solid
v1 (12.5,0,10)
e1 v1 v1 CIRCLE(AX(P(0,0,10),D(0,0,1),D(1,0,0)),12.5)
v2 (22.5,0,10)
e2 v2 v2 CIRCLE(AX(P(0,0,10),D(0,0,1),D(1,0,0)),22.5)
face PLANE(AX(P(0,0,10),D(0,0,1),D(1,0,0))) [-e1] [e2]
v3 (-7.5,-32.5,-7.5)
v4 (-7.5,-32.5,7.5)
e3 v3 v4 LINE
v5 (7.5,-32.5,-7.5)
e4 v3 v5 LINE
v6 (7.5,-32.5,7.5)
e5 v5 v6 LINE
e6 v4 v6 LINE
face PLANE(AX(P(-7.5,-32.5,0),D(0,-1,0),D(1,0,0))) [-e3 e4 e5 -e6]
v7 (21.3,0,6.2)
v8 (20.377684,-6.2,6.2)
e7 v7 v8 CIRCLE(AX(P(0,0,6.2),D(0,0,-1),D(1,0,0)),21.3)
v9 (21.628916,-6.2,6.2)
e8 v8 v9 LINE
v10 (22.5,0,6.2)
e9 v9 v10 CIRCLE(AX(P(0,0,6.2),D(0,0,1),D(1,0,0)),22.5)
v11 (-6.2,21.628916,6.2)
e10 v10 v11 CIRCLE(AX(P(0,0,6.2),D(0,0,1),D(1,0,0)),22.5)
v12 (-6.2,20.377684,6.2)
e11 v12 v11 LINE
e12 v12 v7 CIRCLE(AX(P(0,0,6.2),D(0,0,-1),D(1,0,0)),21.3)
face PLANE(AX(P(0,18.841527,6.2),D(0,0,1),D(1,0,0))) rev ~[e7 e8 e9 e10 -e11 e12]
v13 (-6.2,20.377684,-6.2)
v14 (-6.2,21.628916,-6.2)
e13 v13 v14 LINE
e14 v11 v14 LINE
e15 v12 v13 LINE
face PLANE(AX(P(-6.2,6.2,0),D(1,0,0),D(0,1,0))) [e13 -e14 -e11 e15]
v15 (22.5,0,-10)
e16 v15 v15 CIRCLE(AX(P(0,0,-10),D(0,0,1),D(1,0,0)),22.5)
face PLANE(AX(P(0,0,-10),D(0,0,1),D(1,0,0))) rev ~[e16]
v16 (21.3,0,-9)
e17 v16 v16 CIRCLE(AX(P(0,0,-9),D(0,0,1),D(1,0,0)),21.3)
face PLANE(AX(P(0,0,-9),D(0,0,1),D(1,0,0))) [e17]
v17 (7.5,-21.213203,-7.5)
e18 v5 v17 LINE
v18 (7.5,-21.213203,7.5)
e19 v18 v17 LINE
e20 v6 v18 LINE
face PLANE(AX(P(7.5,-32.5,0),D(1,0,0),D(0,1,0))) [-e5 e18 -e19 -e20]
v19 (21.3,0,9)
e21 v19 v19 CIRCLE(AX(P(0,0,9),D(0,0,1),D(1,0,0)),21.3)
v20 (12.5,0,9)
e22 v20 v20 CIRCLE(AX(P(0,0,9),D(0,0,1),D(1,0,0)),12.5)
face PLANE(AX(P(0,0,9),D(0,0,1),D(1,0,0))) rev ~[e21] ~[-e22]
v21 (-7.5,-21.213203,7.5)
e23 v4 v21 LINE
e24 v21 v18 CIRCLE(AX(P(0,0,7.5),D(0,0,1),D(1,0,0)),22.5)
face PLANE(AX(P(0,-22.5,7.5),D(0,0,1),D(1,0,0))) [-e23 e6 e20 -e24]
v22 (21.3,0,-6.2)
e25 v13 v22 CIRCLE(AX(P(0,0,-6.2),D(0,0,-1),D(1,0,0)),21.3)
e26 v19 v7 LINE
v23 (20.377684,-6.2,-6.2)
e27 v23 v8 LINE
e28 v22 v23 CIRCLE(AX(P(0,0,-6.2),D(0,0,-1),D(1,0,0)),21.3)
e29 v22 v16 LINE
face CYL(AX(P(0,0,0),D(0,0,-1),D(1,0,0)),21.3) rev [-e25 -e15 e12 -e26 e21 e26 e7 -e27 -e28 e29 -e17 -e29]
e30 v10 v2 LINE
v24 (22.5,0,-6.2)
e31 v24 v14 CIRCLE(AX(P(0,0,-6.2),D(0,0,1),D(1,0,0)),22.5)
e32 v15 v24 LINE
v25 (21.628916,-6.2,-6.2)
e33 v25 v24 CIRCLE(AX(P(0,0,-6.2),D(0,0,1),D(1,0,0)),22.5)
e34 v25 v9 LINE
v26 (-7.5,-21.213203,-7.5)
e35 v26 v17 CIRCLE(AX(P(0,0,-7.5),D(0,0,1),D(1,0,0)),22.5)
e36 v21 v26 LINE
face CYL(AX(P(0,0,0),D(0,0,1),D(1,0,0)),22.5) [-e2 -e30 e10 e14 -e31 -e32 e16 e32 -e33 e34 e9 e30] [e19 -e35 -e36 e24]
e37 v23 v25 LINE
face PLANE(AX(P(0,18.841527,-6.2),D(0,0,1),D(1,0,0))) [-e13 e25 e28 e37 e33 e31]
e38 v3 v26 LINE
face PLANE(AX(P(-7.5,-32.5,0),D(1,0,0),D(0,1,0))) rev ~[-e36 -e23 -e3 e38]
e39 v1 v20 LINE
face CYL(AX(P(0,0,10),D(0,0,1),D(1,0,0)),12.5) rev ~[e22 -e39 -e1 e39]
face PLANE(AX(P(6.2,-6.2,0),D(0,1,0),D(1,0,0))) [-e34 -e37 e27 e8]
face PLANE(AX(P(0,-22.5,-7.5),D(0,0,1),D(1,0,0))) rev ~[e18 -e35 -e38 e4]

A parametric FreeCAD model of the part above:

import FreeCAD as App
import Part
import Sketcher
from FreeCAD import Vector

doc = App.newDocument("Part")
params = doc.addObject("Spreadsheet::Sheet", "Params")
for row, (alias, value) in enumerate([
    ("sketch1_diameter", "45 mm"),
    ("pad1_length", "10 mm"),
    ("pad1_length2", "10 mm"),
    ("sketch2_width", "15 mm"),
    ("sketch2_height", "20 mm"),
    ("pad2_length", "7.5 mm"),
    ("pad2_length2", "7.5 mm"),
    ("sketch3_diameter", "42.6 mm"),
    ("pocket1_length", "9 mm"),
    ("pocket1_length2", "9 mm"),
    ("sketch4_diameter", "25 mm"),
    ("pocket2_length", "3 mm"),
    ("sketch5_width", "12.4 mm"),
    ("pocket3_length", "6.2 mm"),
    ("pocket3_length2", "6.2 mm"),
], start=1):
    params.set(f"A{row}", alias)
    params.set(f"B{row}", "=" + value)
    params.setAlias(f"B{row}", alias)

body = doc.addObject("PartDesign::Body", "Body")

# Sketch on XY plane
sketch1 = doc.addObject("Sketcher::SketchObject", "Sketch")
body.addObject(sketch1)
sketch1.AttachmentSupport = (doc.XY_Plane, [""])
sketch1.MapMode = "FlatFace"
sketch1.addGeometry(Part.Circle(Vector(0, 0, 0), Vector(0, 0, 1), 22.5), False)
sketch1.addConstraint([
    Sketcher.Constraint("Coincident", 0, 3, -1, 1),
    Sketcher.Constraint("Diameter", 0, 45.0),
])
sketch1.setExpression("Constraints[1]", "Params.sketch1_diameter")
pad1 = doc.addObject("PartDesign::Pad", "Pad")
body.addObject(pad1)
pad1.Profile = sketch1
pad1.Type = "TwoLengths"
pad1.setExpression("Length", "Params.pad1_length")
pad1.setExpression("Length2", "Params.pad1_length2")

# Sketch on XY plane
sketch2 = doc.addObject("Sketcher::SketchObject", "Sketch001")
body.addObject(sketch2)
sketch2.AttachmentSupport = (doc.XY_Plane, [""])
sketch2.MapMode = "FlatFace"
sketch2.addGeometry([
    Part.LineSegment(Vector(-7.5, -12.5, 0), Vector(-7.5, -32.5, 0)),
    Part.LineSegment(Vector(-7.5, -32.5, 0), Vector(7.5, -32.5, 0)),
    Part.LineSegment(Vector(7.5, -32.5, 0), Vector(7.5, -12.5, 0)),
    Part.LineSegment(Vector(7.5, -12.5, 0), Vector(-7.5, -12.5, 0)),
], False)
sketch2.addConstraint([
    Sketcher.Constraint("Coincident", 0, 2, 1, 1),
    Sketcher.Constraint("Coincident", 1, 2, 2, 1),
    Sketcher.Constraint("Coincident", 2, 2, 3, 1),
    Sketcher.Constraint("Coincident", 3, 2, 0, 1),
    Sketcher.Constraint("Vertical", 0),
    Sketcher.Constraint("Horizontal", 1),
    Sketcher.Constraint("Vertical", 2),
    Sketcher.Constraint("Horizontal", 3),
    Sketcher.Constraint("DistanceX", 1, 1, 1, 2, 15.0),
    Sketcher.Constraint("DistanceY", 0, 2, 0, 1, 20.0),
    Sketcher.Constraint("DistanceX", 0, 2, -1, 1, 7.5),
    Sketcher.Constraint("DistanceY", 0, 2, -1, 1, 32.5),
])
sketch2.setExpression("Constraints[8]", "Params.sketch2_width")
sketch2.setExpression("Constraints[9]", "Params.sketch2_height")
pad2 = doc.addObject("PartDesign::Pad", "Pad001")
body.addObject(pad2)
pad2.Profile = sketch2
pad2.Type = "TwoLengths"
pad2.setExpression("Length", "Params.pad2_length")
pad2.setExpression("Length2", "Params.pad2_length2")

# Sketch on XY plane
sketch3 = doc.addObject("Sketcher::SketchObject", "Sketch002")
body.addObject(sketch3)
sketch3.AttachmentSupport = (doc.XY_Plane, [""])
sketch3.MapMode = "FlatFace"
sketch3.addGeometry(Part.Circle(Vector(0, 0, 0), Vector(0, 0, 1), 21.3), False)
sketch3.addConstraint([
    Sketcher.Constraint("Coincident", 0, 3, -1, 1),
    Sketcher.Constraint("Diameter", 0, 42.6),
])
sketch3.setExpression("Constraints[1]", "Params.sketch3_diameter")
pocket1 = doc.addObject("PartDesign::Pocket", "Pocket")
body.addObject(pocket1)
pocket1.Profile = sketch3
pocket1.Type = "TwoLengths"
pocket1.setExpression("Length", "Params.pocket1_length")
pocket1.setExpression("Length2", "Params.pocket1_length2")

# Sketch on XY plane
sketch4 = doc.addObject("Sketcher::SketchObject", "Sketch003")
body.addObject(sketch4)
sketch4.AttachmentSupport = (doc.XY_Plane, [""])
sketch4.MapMode = "FlatFace"
sketch4.AttachmentOffset = App.Placement(Vector(0, 0, 10), App.Rotation())
sketch4.addGeometry(Part.Circle(Vector(0, 0, 0), Vector(0, 0, 1), 12.5), False)
sketch4.addConstraint([
    Sketcher.Constraint("Coincident", 0, 3, -1, 1),
    Sketcher.Constraint("Diameter", 0, 25.0),
])
sketch4.setExpression("Constraints[1]", "Params.sketch4_diameter")
pocket2 = doc.addObject("PartDesign::Pocket", "Pocket001")
body.addObject(pocket2)
pocket2.Profile = sketch4
pocket2.setExpression("Length", "Params.pocket2_length")

# Sketch on XY plane
sketch5 = doc.addObject("Sketcher::SketchObject", "Sketch004")
body.addObject(sketch5)
sketch5.AttachmentSupport = (doc.XY_Plane, [""])
sketch5.MapMode = "FlatFace"
sketch5.addGeometry([
    Part.LineSegment(Vector(-6.2, 31.483053, 0), Vector(-6.2, 6.2, 0)),  # 0
    Part.LineSegment(Vector(-6.2, 6.2, 0), Vector(6.2, 6.2, 0)),  # 1
    Part.LineSegment(Vector(6.2, 6.2, 0), Vector(6.2, -6.2, 0)),  # 2
    Part.LineSegment(Vector(6.2, -6.2, 0), Vector(35.002598, -6.2, 0)),  # 3
    Part.LineSegment(Vector(35.002598, -6.2, 0), Vector(35.002598, 6.2, 0)),  # 4
    Part.LineSegment(Vector(35.002598, 6.2, 0), Vector(6.2, 31.483053, 0)),  # 5
    Part.LineSegment(Vector(6.2, 31.483053, 0), Vector(-6.2, 31.483053, 0)),  # 6
], False)
sketch5.addConstraint([
    Sketcher.Constraint("Coincident", 0, 2, 1, 1),
    Sketcher.Constraint("Coincident", 1, 2, 2, 1),
    Sketcher.Constraint("Coincident", 2, 2, 3, 1),
    Sketcher.Constraint("Coincident", 3, 2, 4, 1),
    Sketcher.Constraint("Coincident", 4, 2, 5, 1),
    Sketcher.Constraint("Coincident", 5, 2, 6, 1),
    Sketcher.Constraint("Coincident", 6, 2, 0, 1),
    Sketcher.Constraint("Vertical", 0),
    Sketcher.Constraint("Horizontal", 1),
    Sketcher.Constraint("Vertical", 2),
    Sketcher.Constraint("Horizontal", 3),
    Sketcher.Constraint("Vertical", 4),
    Sketcher.Constraint("Horizontal", 6),
    Sketcher.Constraint("Symmetric", 0, 2, 2, 2, -1, 1),
    Sketcher.Constraint("Horizontal", 1, 2, 4, 2),
    Sketcher.Constraint("Vertical", 2, 2, 5, 2),
    Sketcher.Constraint("Equal", 6, 2),
    Sketcher.Constraint("DistanceX", 1, 1, 1, 2, 12.4),
    Sketcher.Constraint("DistanceX", 3, 1, 3, 2, 28.802598),
    Sketcher.Constraint("Distance", 5, 38.32522),
])
sketch5.setExpression("Constraints[17]", "Params.sketch5_width")
pocket3 = doc.addObject("PartDesign::Pocket", "Pocket002")
body.addObject(pocket3)
pocket3.Profile = sketch5
pocket3.Type = "TwoLengths"
pocket3.setExpression("Length", "Params.pocket3_length")
pocket3.setExpression("Length2", "Params.pocket3_length2")

doc.recompute()
